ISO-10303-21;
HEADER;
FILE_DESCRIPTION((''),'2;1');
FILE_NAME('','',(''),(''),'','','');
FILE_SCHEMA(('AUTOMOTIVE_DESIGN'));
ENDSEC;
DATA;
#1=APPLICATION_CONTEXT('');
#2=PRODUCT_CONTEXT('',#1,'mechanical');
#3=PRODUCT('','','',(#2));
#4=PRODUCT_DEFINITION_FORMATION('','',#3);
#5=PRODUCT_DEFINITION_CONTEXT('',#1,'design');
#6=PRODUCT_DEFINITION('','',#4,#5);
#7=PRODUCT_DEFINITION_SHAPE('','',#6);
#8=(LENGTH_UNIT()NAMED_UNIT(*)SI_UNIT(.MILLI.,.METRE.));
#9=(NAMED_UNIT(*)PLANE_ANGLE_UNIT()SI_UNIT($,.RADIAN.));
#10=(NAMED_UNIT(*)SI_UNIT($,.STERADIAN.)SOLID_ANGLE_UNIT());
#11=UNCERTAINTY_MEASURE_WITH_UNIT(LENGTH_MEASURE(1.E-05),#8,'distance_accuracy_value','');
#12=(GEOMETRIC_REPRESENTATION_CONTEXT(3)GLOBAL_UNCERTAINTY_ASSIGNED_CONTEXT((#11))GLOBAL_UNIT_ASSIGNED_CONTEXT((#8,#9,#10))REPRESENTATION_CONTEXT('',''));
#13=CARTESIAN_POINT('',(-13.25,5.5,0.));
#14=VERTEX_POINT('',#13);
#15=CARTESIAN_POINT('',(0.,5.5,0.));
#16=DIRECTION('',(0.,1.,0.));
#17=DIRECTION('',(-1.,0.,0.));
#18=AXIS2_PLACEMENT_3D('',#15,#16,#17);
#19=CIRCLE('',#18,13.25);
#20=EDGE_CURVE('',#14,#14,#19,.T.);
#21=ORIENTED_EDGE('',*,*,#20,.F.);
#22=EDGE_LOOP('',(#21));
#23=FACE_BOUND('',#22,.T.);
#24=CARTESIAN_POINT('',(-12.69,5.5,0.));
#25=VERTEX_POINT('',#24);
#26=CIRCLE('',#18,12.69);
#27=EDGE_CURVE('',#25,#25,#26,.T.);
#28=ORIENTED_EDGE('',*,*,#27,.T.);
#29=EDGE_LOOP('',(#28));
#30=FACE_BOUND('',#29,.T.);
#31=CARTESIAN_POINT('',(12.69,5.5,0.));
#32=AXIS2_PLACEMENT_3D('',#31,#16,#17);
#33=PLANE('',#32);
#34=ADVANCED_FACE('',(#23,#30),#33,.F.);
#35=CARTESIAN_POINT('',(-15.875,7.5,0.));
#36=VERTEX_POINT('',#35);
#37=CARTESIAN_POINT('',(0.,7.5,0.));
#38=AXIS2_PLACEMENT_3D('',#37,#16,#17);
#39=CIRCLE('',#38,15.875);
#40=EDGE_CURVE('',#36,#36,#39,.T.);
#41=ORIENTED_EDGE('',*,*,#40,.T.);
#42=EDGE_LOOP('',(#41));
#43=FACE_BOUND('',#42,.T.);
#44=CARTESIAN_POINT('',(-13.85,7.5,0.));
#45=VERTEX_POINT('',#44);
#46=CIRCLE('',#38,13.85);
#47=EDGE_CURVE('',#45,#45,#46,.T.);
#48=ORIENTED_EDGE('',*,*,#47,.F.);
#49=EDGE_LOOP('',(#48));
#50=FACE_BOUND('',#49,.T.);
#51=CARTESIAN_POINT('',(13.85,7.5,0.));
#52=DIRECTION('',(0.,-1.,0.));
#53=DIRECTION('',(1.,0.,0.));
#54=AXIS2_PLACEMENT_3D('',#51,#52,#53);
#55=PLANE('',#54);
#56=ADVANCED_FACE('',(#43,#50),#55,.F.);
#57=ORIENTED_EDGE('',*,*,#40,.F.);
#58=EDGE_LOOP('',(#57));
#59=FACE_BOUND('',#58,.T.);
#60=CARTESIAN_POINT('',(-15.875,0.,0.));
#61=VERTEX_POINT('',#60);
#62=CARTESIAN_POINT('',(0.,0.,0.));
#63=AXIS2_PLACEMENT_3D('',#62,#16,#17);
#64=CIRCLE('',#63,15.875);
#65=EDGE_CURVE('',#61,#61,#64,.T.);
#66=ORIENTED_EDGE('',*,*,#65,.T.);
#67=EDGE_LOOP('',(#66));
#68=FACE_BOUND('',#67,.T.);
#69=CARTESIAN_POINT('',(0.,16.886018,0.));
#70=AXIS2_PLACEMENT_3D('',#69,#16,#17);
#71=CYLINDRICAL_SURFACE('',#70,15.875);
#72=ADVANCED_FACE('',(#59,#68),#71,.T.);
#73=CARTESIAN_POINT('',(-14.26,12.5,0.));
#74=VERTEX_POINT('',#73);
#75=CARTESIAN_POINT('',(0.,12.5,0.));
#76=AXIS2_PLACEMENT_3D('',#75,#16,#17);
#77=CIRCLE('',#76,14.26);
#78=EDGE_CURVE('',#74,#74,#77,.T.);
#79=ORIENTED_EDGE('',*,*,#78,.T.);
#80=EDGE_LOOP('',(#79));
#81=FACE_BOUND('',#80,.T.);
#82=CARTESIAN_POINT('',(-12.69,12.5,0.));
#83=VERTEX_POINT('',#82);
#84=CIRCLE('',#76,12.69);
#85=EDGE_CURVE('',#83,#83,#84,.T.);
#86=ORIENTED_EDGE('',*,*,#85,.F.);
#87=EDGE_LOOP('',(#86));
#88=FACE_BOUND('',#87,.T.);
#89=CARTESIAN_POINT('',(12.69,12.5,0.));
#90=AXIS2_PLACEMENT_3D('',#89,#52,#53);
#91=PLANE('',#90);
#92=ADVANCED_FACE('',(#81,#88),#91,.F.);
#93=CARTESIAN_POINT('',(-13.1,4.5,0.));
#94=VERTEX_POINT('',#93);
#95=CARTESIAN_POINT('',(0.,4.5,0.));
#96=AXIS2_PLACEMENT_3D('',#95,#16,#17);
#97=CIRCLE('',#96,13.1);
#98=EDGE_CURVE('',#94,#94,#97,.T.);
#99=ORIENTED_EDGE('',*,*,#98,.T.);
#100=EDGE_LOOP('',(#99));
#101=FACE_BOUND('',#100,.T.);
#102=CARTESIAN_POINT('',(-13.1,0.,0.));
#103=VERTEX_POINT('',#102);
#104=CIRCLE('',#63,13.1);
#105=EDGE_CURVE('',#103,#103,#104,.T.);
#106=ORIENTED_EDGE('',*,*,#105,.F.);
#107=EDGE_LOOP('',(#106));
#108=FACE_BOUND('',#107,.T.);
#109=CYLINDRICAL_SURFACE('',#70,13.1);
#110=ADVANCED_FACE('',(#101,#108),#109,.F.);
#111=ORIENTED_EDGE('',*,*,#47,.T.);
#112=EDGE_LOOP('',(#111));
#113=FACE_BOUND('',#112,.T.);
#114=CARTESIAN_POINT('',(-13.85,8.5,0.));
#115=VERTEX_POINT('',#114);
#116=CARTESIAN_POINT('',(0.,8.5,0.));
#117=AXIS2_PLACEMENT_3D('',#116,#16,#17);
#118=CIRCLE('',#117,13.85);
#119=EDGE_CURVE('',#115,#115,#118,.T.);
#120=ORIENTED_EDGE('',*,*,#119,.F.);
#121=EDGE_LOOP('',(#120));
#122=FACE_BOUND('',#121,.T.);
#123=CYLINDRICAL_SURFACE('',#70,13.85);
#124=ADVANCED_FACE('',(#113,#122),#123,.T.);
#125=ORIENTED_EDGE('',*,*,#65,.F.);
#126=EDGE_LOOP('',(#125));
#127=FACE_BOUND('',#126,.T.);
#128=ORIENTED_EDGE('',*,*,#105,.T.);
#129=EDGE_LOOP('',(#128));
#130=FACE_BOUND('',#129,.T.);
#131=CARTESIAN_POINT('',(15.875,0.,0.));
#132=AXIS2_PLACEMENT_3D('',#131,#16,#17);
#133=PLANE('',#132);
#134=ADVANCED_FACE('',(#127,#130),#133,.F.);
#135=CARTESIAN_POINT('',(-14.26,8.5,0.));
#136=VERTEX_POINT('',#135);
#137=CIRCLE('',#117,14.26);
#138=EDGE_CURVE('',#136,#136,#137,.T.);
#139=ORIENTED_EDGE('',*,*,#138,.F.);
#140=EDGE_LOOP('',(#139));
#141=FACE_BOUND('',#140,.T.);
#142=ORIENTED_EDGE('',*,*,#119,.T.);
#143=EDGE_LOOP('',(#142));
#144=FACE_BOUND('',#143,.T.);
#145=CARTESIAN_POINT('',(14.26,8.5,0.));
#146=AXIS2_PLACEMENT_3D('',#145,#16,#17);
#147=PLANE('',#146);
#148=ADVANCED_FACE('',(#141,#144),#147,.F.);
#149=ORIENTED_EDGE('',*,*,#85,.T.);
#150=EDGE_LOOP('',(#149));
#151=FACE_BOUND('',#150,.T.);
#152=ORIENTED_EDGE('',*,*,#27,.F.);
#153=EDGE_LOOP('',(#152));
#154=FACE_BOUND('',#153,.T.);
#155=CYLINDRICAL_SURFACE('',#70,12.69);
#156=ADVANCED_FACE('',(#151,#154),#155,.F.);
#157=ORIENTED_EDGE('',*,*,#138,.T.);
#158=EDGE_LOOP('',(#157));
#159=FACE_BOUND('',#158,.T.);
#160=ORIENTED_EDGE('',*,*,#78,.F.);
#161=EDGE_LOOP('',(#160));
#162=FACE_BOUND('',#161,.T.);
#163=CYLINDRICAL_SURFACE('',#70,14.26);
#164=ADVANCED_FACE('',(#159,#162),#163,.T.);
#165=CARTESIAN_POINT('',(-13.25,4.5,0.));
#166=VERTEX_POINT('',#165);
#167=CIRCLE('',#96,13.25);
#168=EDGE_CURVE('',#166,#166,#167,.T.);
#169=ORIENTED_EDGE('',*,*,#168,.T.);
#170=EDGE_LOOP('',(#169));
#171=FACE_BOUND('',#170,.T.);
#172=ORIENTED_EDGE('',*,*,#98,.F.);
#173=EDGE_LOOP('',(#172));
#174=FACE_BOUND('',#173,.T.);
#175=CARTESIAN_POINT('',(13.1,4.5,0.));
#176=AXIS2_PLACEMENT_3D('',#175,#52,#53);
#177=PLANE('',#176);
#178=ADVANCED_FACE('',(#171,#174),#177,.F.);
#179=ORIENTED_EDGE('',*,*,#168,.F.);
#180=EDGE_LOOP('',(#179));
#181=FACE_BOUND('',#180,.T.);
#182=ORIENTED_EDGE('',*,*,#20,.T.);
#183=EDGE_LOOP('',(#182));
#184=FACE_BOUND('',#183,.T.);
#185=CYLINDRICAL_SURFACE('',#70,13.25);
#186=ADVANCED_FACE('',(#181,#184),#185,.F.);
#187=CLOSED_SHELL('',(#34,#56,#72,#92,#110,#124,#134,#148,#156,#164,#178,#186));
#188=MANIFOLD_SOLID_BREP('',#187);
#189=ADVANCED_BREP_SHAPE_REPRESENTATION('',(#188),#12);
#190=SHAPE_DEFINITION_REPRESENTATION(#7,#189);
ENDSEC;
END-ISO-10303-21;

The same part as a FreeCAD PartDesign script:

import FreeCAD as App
import Part
import Sketcher
from FreeCAD import Vector

doc = App.newDocument("Part")
params = doc.addObject("Spreadsheet::Sheet", "Params")
for row, (alias, value) in enumerate([
    ("sketch1_height", "1 mm"),
    ("sketch1_height2", "4 mm"),
    ("sketch1_height3", "7 mm"),
    ("sketch1_height4", "4.5 mm"),
    ("sketch1_width", "0.41 mm"),
    ("revolution_angle", "360 deg"),
], start=1):
    params.set(f"A{row}", alias)
    params.set(f"B{row}", "=" + value)
    params.setAlias(f"B{row}", alias)

body = doc.addObject("PartDesign::Body", "Body")

# Sketch on XY plane
sketch1 = body.newObject("Sketcher::SketchObject", "Sketch")
sketch1.AttachmentSupport = (doc.getObject("XY_Plane"), [""])
sketch1.MapMode = "FlatFace"
sketch1.addGeometry([
    Part.LineSegment(Vector(13.1, 4.5, 0), Vector(13.1, 0, 0)),  # 0
    Part.LineSegment(Vector(13.1, 0, 0), Vector(15.88, 0, 0)),  # 1
    Part.LineSegment(Vector(15.88, 0, 0), Vector(15.88, 7.5, 0)),  # 2
    Part.LineSegment(Vector(15.88, 7.5, 0), Vector(13.85, 7.5, 0)),  # 3
    Part.LineSegment(Vector(13.85, 7.5, 0), Vector(13.85, 8.5, 0)),  # 4
    Part.LineSegment(Vector(13.85, 8.5, 0), Vector(14.26, 8.5, 0)),  # 5
    Part.LineSegment(Vector(14.26, 8.5, 0), Vector(14.26, 12.5, 0)),  # 6
    Part.LineSegment(Vector(14.26, 12.5, 0), Vector(12.69, 12.5, 0)),  # 7
    Part.LineSegment(Vector(12.69, 12.5, 0), Vector(12.69, 5.5, 0)),  # 8
    Part.LineSegment(Vector(12.69, 5.5, 0), Vector(13.25, 5.5, 0)),  # 9
    Part.LineSegment(Vector(13.25, 5.5, 0), Vector(13.25, 4.5, 0)),  # 10
    Part.LineSegment(Vector(13.25, 4.5, 0), Vector(13.1, 4.5, 0)),  # 11
], False)
sketch1.addConstraint([
    Sketcher.Constraint("Coincident", 0, 2, 1, 1),
    Sketcher.Constraint("Coincident", 1, 2, 2, 1),
    Sketcher.Constraint("Coincident", 2, 2, 3, 1),
    Sketcher.Constraint("Coincident", 3, 2, 4, 1),
    Sketcher.Constraint("Coincident", 4, 2, 5, 1),
    Sketcher.Constraint("Coincident", 5, 2, 6, 1),
    Sketcher.Constraint("Coincident", 6, 2, 7, 1),
    Sketcher.Constraint("Coincident", 7, 2, 8, 1),
    Sketcher.Constraint("Coincident", 8, 2, 9, 1),
    Sketcher.Constraint("Coincident", 9, 2, 10, 1),
    Sketcher.Constraint("Coincident", 10, 2, 11, 1),
    Sketcher.Constraint("Coincident", 11, 2, 0, 1),
    Sketcher.Constraint("Vertical", 0),
    Sketcher.Constraint("Horizontal", 1),
    Sketcher.Constraint("Vertical", 2),
    Sketcher.Constraint("Horizontal", 3),
    Sketcher.Constraint("Vertical", 4),
    Sketcher.Constraint("Horizontal", 5),
    Sketcher.Constraint("Vertical", 6),
    Sketcher.Constraint("Horizontal", 7),
    Sketcher.Constraint("Vertical", 8),
    Sketcher.Constraint("Horizontal", 9),
    Sketcher.Constraint("Vertical", 10),
    Sketcher.Constraint("Horizontal", 11),
    Sketcher.Constraint("PointOnObject", 0, 2, -1),
    Sketcher.Constraint("Equal", 4, 10),
    Sketcher.Constraint("DistanceY", 4, 1, 4, 2, 1.0),
    Sketcher.Constraint("DistanceY", 6, 1, 6, 2, 4.0),
    Sketcher.Constraint("DistanceY", 8, 2, 8, 1, 7.0),
    Sketcher.Constraint("DistanceY", 0, 2, 0, 1, 4.5),
    Sketcher.Constraint("DistanceX", 5, 1, 5, 2, 0.41),
    Sketcher.Constraint("DistanceX", 7, 2, 7, 1, 1.57),
    Sketcher.Constraint("DistanceX", 9, 1, 9, 2, 0.56),
    Sketcher.Constraint("DistanceX", 11, 2, 11, 1, 0.15),
    Sketcher.Constraint("DistanceX", -1, 1, 0, 2, 13.1),
    Sketcher.Constraint("DistanceX", 1, 1, 1, 2, 2.775),
])
sketch1.setExpression("Constraints[26]", "Params.sketch1_height")
sketch1.setExpression("Constraints[27]", "Params.sketch1_height2")
sketch1.setExpression("Constraints[28]", "Params.sketch1_height3")
sketch1.setExpression("Constraints[29]", "Params.sketch1_height4")
sketch1.setExpression("Constraints[30]", "Params.sketch1_width")
revolution = body.newObject("PartDesign::Revolution", "Revolution")
revolution.Profile = sketch1
revolution.ReferenceAxis = (sketch1, ["V_Axis"])
revolution.setExpression("Angle", "Params.revolution_angle")

doc.recompute()
